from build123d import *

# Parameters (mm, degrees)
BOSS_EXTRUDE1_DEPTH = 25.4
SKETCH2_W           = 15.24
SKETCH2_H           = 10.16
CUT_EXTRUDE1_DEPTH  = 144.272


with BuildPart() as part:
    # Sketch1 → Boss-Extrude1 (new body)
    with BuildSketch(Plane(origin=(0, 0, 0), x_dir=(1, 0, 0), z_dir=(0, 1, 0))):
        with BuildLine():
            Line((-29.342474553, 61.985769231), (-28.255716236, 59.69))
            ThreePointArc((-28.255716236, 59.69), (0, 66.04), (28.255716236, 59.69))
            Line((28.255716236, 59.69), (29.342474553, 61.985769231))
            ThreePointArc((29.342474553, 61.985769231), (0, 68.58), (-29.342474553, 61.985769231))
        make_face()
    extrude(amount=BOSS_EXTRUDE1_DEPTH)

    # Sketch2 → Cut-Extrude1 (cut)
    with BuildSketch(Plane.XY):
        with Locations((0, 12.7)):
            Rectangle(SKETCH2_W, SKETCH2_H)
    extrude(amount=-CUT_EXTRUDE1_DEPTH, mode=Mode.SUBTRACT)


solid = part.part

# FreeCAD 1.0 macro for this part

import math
import FreeCAD as App
import Part
import Sketcher
from FreeCAD import Vector
Q = App.Units.Quantity


def add_polygon(sketch, points):
    """Adds a closed chain of lines whose ends are joined by coincident constraints."""
    first, n = sketch.GeometryCount, len(points)
    for a, b in zip(points, points[1:] + points[:1]):
        sketch.addGeometry(Part.LineSegment(App.Vector(*a, 0), App.Vector(*b, 0)), False)
    for i in range(n):
        sketch.addConstraint(Sketcher.Constraint("Coincident", first + i, 2, first + (i + 1) % n, 1))

doc = App.newDocument("Part")
body = doc.addObject("PartDesign::Body", "Body")

sketch1 = body.newObject("Sketcher::SketchObject", "Sketch")
sketch1.AttachmentSupport = (doc.getObject("XZ_Plane"), [""])
sketch1.MapMode = "FlatFace"
sketch1.addGeometry([
    Part.LineSegment(Vector(-29.3, -62, 0), Vector(-28.3, -59.7, 0)),
    Part.ArcOfCircle(Part.Circle(Vector(0, 0, 0), Vector(0, 0, 1), 66), math.radians(-115), math.radians(-65)),
    Part.LineSegment(Vector(28.3, -59.7, 0), Vector(29.3, -62, 0)),
    Part.ArcOfCircle(Part.Circle(Vector(0, 0, 0), Vector(0, 0, 1), 68.6), math.radians(-115), math.radians(-65)),
], False)
sketch1.addConstraint([
    Sketcher.Constraint("Coincident", 0, 2, 1, 1),
    Sketcher.Constraint("Coincident", 1, 2, 2, 1),
    Sketcher.Constraint("Coincident", 2, 2, 3, 2),
    Sketcher.Constraint("Coincident", 3, 1, 0, 1),
    Sketcher.Constraint("Coincident", 1, 3, -1, 1),
    Sketcher.Constraint("Coincident", 3, 3, -1, 1),
    Sketcher.Constraint("Horizontal", 0, 2, 1, 2),
    Sketcher.Constraint("Horizontal", 2, 2, 3, 1),
    Sketcher.Constraint("Radius", 1, Q("2.6 in")),
    Sketcher.Constraint("Radius", 3, Q("2.7 in")),
    Sketcher.Constraint("DistanceY", 0, 2, -1, 1, Q("2.35 in")),
    Sketcher.Constraint("DistanceY", 2, 2, -1, 1, 61.985769),
])
pad1 = body.newObject("PartDesign::Pad", "Pad")
pad1.Profile = sketch1
pad1.Length = Q("1 in")
pad1.Reversed = True

sketch2 = body.newObject("Sketcher::SketchObject", "Sketch001")
sketch2.AttachmentSupport = (doc.getObject("XY_Plane"), [""])
sketch2.MapMode = "FlatFace"
add_polygon(sketch2, [(-8, 18), (-8, 8), (8, 8), (8, 18)])
sketch2.addConstraint([
    Sketcher.Constraint("Vertical", 0),
    Sketcher.Constraint("Horizontal", 1),
    Sketcher.Constraint("Vertical", 2),
    Sketcher.Constraint("Horizontal", 3),
    Sketcher.Constraint("DistanceX", 1, 1, 1, 2, Q("0.6 in")),
    Sketcher.Constraint("DistanceY", 0, 2, 0, 1, Q("0.4 in")),
    Sketcher.Constraint("DistanceX", 0, 2, -1, 1, Q("0.3 in")),
    Sketcher.Constraint("DistanceY", -1, 1, 0, 2, Q("0.3 in")),
])
pocket1 = body.newObject("PartDesign::Pocket", "Pocket")
pocket1.Profile = sketch2
pocket1.Length = Q("5.68 in")

doc.recompute()
